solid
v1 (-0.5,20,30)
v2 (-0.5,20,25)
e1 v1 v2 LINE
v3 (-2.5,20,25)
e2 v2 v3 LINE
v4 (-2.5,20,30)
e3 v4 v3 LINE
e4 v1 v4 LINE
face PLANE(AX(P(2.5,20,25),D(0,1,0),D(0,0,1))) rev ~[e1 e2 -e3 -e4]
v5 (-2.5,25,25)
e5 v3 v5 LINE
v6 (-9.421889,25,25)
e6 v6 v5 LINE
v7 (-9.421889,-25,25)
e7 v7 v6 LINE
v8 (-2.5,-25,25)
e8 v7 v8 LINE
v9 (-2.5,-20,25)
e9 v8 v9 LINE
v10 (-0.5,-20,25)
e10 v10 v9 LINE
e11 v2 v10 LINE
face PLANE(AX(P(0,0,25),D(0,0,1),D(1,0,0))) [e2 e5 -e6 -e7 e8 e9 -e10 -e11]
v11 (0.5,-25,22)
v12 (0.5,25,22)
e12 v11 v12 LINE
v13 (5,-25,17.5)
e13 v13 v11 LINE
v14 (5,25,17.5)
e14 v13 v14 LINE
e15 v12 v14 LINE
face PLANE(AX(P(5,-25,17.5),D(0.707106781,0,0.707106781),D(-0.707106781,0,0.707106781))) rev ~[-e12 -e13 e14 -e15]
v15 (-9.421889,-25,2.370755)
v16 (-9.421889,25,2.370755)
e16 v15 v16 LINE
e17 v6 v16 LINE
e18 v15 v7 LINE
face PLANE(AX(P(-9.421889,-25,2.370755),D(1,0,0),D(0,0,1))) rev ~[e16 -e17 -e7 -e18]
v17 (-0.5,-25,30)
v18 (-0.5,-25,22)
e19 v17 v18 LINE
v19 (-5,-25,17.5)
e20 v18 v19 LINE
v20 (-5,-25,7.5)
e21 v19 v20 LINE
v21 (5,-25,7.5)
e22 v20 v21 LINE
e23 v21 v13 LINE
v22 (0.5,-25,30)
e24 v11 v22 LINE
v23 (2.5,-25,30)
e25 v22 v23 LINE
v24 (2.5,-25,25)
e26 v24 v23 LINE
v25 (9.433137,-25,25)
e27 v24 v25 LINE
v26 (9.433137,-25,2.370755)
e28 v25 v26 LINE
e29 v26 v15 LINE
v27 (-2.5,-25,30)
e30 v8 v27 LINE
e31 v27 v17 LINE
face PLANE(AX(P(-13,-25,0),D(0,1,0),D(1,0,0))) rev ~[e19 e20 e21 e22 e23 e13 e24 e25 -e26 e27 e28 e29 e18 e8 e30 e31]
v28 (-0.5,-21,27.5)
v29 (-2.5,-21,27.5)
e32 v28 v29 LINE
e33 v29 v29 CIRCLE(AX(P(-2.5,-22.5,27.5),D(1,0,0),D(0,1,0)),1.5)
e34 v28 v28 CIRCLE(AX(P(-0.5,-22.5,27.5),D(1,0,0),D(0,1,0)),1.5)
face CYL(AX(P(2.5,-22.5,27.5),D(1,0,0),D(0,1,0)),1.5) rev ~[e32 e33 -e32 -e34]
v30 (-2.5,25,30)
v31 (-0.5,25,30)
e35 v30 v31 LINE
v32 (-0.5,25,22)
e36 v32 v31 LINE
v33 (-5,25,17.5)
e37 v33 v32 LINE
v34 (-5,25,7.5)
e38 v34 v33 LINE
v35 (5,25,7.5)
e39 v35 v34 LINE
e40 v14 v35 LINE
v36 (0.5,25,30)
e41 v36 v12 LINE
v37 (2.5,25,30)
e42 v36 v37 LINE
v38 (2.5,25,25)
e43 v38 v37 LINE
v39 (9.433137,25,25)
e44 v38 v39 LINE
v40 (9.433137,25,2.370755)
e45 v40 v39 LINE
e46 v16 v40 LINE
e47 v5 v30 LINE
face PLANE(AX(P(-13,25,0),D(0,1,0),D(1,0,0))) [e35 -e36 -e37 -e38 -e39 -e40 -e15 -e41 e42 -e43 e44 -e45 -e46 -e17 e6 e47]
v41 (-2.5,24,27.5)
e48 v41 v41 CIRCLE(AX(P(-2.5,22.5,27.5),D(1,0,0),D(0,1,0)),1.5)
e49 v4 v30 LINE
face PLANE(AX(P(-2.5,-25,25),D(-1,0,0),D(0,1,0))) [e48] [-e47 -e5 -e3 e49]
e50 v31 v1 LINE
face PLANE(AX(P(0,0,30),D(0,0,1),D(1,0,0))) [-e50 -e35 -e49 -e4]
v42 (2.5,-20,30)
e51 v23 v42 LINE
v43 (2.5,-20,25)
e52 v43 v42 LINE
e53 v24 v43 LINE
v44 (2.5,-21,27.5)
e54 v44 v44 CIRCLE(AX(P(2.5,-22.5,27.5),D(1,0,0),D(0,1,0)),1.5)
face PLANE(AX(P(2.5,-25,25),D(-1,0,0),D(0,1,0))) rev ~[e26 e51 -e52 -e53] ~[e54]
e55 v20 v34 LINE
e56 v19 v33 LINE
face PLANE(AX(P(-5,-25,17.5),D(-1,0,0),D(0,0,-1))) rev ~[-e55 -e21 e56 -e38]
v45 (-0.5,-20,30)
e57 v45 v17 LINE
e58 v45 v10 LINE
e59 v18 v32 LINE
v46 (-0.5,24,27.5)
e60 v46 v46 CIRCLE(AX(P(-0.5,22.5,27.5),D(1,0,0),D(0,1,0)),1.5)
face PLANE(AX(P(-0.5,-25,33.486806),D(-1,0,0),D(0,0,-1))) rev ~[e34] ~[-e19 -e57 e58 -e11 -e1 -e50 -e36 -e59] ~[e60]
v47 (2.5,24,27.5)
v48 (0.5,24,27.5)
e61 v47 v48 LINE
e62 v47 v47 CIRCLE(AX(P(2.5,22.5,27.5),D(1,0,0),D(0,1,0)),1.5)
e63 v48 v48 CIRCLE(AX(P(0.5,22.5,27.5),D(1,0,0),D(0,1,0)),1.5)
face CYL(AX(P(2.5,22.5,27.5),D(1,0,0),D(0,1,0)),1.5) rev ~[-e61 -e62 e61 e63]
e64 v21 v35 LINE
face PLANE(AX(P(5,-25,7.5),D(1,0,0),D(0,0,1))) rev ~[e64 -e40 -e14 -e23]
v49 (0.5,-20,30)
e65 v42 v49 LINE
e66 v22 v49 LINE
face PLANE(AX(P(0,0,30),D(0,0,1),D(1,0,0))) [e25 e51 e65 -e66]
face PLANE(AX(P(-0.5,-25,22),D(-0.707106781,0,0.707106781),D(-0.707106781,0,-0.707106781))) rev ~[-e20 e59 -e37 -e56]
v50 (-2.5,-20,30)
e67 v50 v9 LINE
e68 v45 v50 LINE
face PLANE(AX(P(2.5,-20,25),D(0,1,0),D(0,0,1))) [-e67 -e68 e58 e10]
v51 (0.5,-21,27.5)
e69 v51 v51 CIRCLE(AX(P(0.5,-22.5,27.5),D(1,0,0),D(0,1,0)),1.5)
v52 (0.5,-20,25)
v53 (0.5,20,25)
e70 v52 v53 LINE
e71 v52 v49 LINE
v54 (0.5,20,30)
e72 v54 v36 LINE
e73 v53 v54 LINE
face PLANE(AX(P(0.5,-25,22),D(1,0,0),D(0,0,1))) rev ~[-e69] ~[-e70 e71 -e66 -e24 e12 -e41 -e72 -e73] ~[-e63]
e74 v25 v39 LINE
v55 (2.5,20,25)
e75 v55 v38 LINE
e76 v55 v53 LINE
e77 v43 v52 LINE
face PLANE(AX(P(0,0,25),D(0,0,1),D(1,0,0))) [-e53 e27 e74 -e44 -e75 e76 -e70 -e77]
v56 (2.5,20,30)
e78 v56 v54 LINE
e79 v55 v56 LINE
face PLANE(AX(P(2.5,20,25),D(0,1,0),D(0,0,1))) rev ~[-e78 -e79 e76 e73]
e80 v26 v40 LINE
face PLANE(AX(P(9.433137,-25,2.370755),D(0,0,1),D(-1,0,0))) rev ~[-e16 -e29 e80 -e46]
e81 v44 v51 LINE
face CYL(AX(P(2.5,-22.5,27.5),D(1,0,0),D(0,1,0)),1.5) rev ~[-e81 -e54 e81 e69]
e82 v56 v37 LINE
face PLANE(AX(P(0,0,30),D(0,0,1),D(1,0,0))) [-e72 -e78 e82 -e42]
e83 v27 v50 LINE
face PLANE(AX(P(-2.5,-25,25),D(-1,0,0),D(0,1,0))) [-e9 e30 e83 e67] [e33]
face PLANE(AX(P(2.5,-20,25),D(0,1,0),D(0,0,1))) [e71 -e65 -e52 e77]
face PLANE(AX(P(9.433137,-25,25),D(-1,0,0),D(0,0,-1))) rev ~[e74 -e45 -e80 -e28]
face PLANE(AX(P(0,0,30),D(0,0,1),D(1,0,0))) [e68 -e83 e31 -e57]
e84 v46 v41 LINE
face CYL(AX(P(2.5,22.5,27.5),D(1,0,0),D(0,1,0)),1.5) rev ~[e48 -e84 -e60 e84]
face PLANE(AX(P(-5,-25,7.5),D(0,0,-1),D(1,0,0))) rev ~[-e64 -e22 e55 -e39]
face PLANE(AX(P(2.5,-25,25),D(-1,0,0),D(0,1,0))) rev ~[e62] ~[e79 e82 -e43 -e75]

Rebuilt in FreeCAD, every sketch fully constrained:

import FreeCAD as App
import Part
import Sketcher
from FreeCAD import Vector
Q = App.Units.Quantity

doc = App.newDocument("Part")
body = doc.addObject("PartDesign::Body", "Body")

sketch1 = doc.addObject("Sketcher::SketchObject", "Sketch")
body.addObject(sketch1)
sketch1.AttachmentSupport = (doc.XY_Plane, [""])
sketch1.MapMode = "FlatFace"
sketch1.addGeometry([
    Part.LineSegment(Vector(-13, 25, 0), Vector(-13, -25, 0)),
    Part.LineSegment(Vector(-13, -25, 0), Vector(13, -25, 0)),
    Part.LineSegment(Vector(13, -25, 0), Vector(13, 25, 0)),
    Part.LineSegment(Vector(13, 25, 0), Vector(-13, 25, 0)),
], False)
sketch1.addConstraint([
    Sketcher.Constraint("Coincident", 0, 2, 1, 1),
    Sketcher.Constraint("Coincident", 1, 2, 2, 1),
    Sketcher.Constraint("Coincident", 2, 2, 3, 1),
    Sketcher.Constraint("Coincident", 3, 2, 0, 1),
    Sketcher.Constraint("Vertical", 0),
    Sketcher.Constraint("Horizontal", 1),
    Sketcher.Constraint("Vertical", 2),
    Sketcher.Constraint("Horizontal", 3),
    Sketcher.Constraint("Symmetric", 0, 2, 2, 2, -1, 1),
    Sketcher.Constraint("DistanceX", 1, 1, 1, 2, Q("26 mm")),
    Sketcher.Constraint("DistanceY", 0, 2, 0, 1, Q("50 mm")),
])
pad1 = doc.addObject("PartDesign::Pad", "Pad")
body.addObject(pad1)
pad1.Profile = sketch1
pad1.Length = 25

sketch2 = doc.addObject("Sketcher::SketchObject", "Sketch001")
body.addObject(sketch2)
sketch2.AttachmentSupport = (doc.XY_Plane, [""])
sketch2.MapMode = "FlatFace"
sketch2.AttachmentOffset = App.Placement(Vector(0, 0, 25), App.Rotation())
sketch2.addGeometry([
    Part.LineSegment(Vector(-2, 25, 0), Vector(-2, -25, 0)),
    Part.LineSegment(Vector(-2, -25, 0), Vector(2, -25, 0)),
    Part.LineSegment(Vector(2, -25, 0), Vector(2, 25, 0)),
    Part.LineSegment(Vector(2, 25, 0), Vector(-2, 25, 0)),
], False)
sketch2.addConstraint([
    Sketcher.Constraint("Coincident", 0, 2, 1, 1),
    Sketcher.Constraint("Coincident", 1, 2, 2, 1),
    Sketcher.Constraint("Coincident", 2, 2, 3, 1),
    Sketcher.Constraint("Coincident", 3, 2, 0, 1),
    Sketcher.Constraint("Vertical", 0),
    Sketcher.Constraint("Horizontal", 1),
    Sketcher.Constraint("Vertical", 2),
    Sketcher.Constraint("Horizontal", 3),
    Sketcher.Constraint("Symmetric", 0, 2, 2, 2, -1, 1),
    Sketcher.Constraint("DistanceX", 1, 1, 1, 2, Q("5 mm")),
    Sketcher.Constraint("DistanceY", 0, 2, 0, 1, Q("50 mm")),
])
pad2 = doc.addObject("PartDesign::Pad", "Pad001")
body.addObject(pad2)
pad2.Profile = sketch2
pad2.Length = 5

sketch3 = doc.addObject("Sketcher::SketchObject", "Sketch002")
body.addObject(sketch3)
sketch3.AttachmentSupport = (doc.YZ_Plane, [""])
sketch3.MapMode = "FlatFace"
sketch3.AttachmentOffset = App.Placement(Vector(0, 0, 2.5), App.Rotation())
sketch3.addGeometry([
    Part.Circle(Vector(-22.5, 27.5, 0), Vector(0, 0, 1), 1.5),
    Part.Circle(Vector(22.5, 27.5, 0), Vector(0, 0, 1), 1.5),
], False)
sketch3.addConstraint([
    Sketcher.Constraint("Equal", 0, 1),
    Sketcher.Constraint("Symmetric", 0, 3, 1, 3, -2),
    Sketcher.Constraint("Diameter", 0, Q("3 mm")),
    Sketcher.Constraint("DistanceX", 0, 3, 1, 3, Q("45 mm")),
    Sketcher.Constraint("DistanceY", -1, 1, 0, 3, Q("27.5 mm")),
])
pocket1 = doc.addObject("PartDesign::Pocket", "Pocket")
body.addObject(pocket1)
pocket1.Profile = sketch3
pocket1.Length = 25

sketch4 = doc.addObject("Sketcher::SketchObject", "Sketch003")
body.addObject(sketch4)
sketch4.AttachmentSupport = (doc.XZ_Plane, [""])
sketch4.MapMode = "FlatFace"
sketch4.AttachmentOffset = App.Placement(Vector(0, 0, 25), App.Rotation())
sketch4.addGeometry([
    Part.LineSegment(Vector(-5, 7.5, 0), Vector(5, 7.5, 0)),
    Part.LineSegment(Vector(5, 7.5, 0), Vector(5, 17.5, 0)),
    Part.LineSegment(Vector(5, 17.5, 0), Vector(0.5, 22, 0)),
    Part.LineSegment(Vector(0.5, 22, 0), Vector(0.5, 33.5, 0)),
    Part.LineSegment(Vector(0.5, 33.5, 0), Vector(-0.5, 33.5, 0)),
    Part.LineSegment(Vector(-0.5, 33.5, 0), Vector(-0.5, 22, 0)),
    Part.LineSegment(Vector(-0.5, 22, 0), Vector(-5, 17.5, 0)),
    Part.LineSegment(Vector(-5, 17.5, 0), Vector(-5, 7.5, 0)),
    Part.LineSegment(Vector(13, 25, 0), Vector(9.4, 25, 0)),
    Part.LineSegment(Vector(9.4, 25, 0), Vector(9.4, 2.4, 0)),
    Part.LineSegment(Vector(9.4, 2.4, 0), Vector(-9.4, 2.4, 0)),
    Part.LineSegment(Vector(-9.4, 2.4, 0), Vector(-9.4, 25, 0)),
    Part.LineSegment(Vector(-9.4, 25, 0), Vector(-13, 25, 0)),
    Part.LineSegment(Vector(-13, 25, 0), Vector(-13, 0, 0)),
    Part.LineSegment(Vector(-13, 0, 0), Vector(13, 0, 0)),
    Part.LineSegment(Vector(13, 0, 0), Vector(13, 25, 0)),
], False)
sketch4.addConstraint([
    Sketcher.Constraint("Coincident", 0, 2, 1, 1),
    Sketcher.Constraint("Coincident", 1, 2, 2, 1),
    Sketcher.Constraint("Coincident", 2, 2, 3, 1),
    Sketcher.Constraint("Coincident", 3, 2, 4, 1),
    Sketcher.Constraint("Coincident", 4, 2, 5, 1),
    Sketcher.Constraint("Coincident", 5, 2, 6, 1),
    Sketcher.Constraint("Coincident", 6, 2, 7, 1),
    Sketcher.Constraint("Coincident", 7, 2, 0, 1),
    Sketcher.Constraint("Coincident", 8, 2, 9, 1),
    Sketcher.Constraint("Coincident", 9, 2, 10, 1),
    Sketcher.Constraint("Coincident", 10, 2, 11, 1),
    Sketcher.Constraint("Coincident", 11, 2, 12, 1),
    Sketcher.Constraint("Coincident", 12, 2, 13, 1),
    Sketcher.Constraint("Coincident", 13, 2, 14, 1),
    Sketcher.Constraint("Coincident", 14, 2, 15, 1),
    Sketcher.Constraint("Coincident", 15, 2, 8, 1),
    Sketcher.Constraint("Horizontal", 0),
    Sketcher.Constraint("Vertical", 1),
    Sketcher.Constraint("Vertical", 3),
    Sketcher.Constraint("Horizontal", 4),
    Sketcher.Constraint("Vertical", 5),
    Sketcher.Constraint("Vertical", 7),
    Sketcher.Constraint("Horizontal", 8),
    Sketcher.Constraint("Vertical", 9),
    Sketcher.Constraint("Horizontal", 10),
    Sketcher.Constraint("Vertical", 11),
    Sketcher.Constraint("Horizontal", 12),
    Sketcher.Constraint("Vertical", 13),
    Sketcher.Constraint("Horizontal", 14),
    Sketcher.Constraint("Vertical", 15),
    Sketcher.Constraint("Symmetric", 13, 2, 14, 2, -1, 1),
    Sketcher.Constraint("Symmetric", 2, 2, 5, 2, -2),
    Sketcher.Constraint("Symmetric", 1, 2, 6, 2, -2),
    Sketcher.Constraint("Perpendicular", 2, 6),
    Sketcher.Constraint("Horizontal", 8, 2, 11, 2),
    Sketcher.Constraint("Equal", 0, 1),
    Sketcher.Constraint("DistanceX", 0, 1, 0, 2, Q("10 mm")),
    Sketcher.Constraint("DistanceX", 4, 2, 4, 1, Q("1 mm")),
    Sketcher.Constraint("DistanceX", 14, 1, 14, 2, Q("26 mm")),
    Sketcher.Constraint("DistanceY", 13, 2, 13, 1, Q("25 mm")),
    Sketcher.Constraint("DistanceY", -1, 1, 2, 2, Q("22 mm")),
    Sketcher.Constraint("DistanceX", 12, 2, 12, 1, Q("3.578111 mm")),
    Sketcher.Constraint("DistanceX", 8, 2, 8, 1, Q("3.566863 mm")),
    Sketcher.Constraint("DistanceY", 3, 1, 3, 2, Q("11.486806 mm")),
    Sketcher.Constraint("DistanceY", 9, 2, 9, 1, Q("22.629245 mm")),
])
pocket2 = doc.addObject("PartDesign::Pocket", "Pocket001")
body.addObject(pocket2)
pocket2.Profile = sketch4
pocket2.Length = 77.6

sketch5 = doc.addObject("Sketcher::SketchObject", "Sketch004")
body.addObject(sketch5)
sketch5.AttachmentSupport = (doc.YZ_Plane, [""])
sketch5.MapMode = "FlatFace"
sketch5.AttachmentOffset = App.Placement(Vector(0, 0, 2.5), App.Rotation())
sketch5.addGeometry([
    Part.LineSegment(Vector(-20, 30, 0), Vector(-20, 25, 0)),
    Part.LineSegment(Vector(-20, 25, 0), Vector(20, 25, 0)),
    Part.LineSegment(Vector(20, 25, 0), Vector(20, 30, 0)),
    Part.LineSegment(Vector(20, 30, 0), Vector(-20, 30, 0)),
], False)
sketch5.addConstraint([
    Sketcher.Constraint("Coincident", 0, 2, 1, 1),
    Sketcher.Constraint("Coincident", 1, 2, 2, 1),
    Sketcher.Constraint("Coincident", 2, 2, 3, 1),
    Sketcher.Constraint("Coincident", 3, 2, 0, 1),
    Sketcher.Constraint("Vertical", 0),
    Sketcher.Constraint("Horizontal", 1),
    Sketcher.Constraint("Vertical", 2),
    Sketcher.Constraint("Horizontal", 3),
    Sketcher.Constraint("DistanceX", 1, 1, 1, 2, Q("40 mm")),
    Sketcher.Constraint("DistanceY", 0, 2, 0, 1, Q("5 mm")),
    Sketcher.Constraint("DistanceX", 0, 2, -1, 1, Q("20 mm")),
    Sketcher.Constraint("DistanceY", -1, 1, 0, 2, Q("25 mm")),
])
pocket3 = doc.addObject("PartDesign::Pocket", "Pocket002")
body.addObject(pocket3)
pocket3.Profile = sketch5
pocket3.Length = 25

doc.recompute()
